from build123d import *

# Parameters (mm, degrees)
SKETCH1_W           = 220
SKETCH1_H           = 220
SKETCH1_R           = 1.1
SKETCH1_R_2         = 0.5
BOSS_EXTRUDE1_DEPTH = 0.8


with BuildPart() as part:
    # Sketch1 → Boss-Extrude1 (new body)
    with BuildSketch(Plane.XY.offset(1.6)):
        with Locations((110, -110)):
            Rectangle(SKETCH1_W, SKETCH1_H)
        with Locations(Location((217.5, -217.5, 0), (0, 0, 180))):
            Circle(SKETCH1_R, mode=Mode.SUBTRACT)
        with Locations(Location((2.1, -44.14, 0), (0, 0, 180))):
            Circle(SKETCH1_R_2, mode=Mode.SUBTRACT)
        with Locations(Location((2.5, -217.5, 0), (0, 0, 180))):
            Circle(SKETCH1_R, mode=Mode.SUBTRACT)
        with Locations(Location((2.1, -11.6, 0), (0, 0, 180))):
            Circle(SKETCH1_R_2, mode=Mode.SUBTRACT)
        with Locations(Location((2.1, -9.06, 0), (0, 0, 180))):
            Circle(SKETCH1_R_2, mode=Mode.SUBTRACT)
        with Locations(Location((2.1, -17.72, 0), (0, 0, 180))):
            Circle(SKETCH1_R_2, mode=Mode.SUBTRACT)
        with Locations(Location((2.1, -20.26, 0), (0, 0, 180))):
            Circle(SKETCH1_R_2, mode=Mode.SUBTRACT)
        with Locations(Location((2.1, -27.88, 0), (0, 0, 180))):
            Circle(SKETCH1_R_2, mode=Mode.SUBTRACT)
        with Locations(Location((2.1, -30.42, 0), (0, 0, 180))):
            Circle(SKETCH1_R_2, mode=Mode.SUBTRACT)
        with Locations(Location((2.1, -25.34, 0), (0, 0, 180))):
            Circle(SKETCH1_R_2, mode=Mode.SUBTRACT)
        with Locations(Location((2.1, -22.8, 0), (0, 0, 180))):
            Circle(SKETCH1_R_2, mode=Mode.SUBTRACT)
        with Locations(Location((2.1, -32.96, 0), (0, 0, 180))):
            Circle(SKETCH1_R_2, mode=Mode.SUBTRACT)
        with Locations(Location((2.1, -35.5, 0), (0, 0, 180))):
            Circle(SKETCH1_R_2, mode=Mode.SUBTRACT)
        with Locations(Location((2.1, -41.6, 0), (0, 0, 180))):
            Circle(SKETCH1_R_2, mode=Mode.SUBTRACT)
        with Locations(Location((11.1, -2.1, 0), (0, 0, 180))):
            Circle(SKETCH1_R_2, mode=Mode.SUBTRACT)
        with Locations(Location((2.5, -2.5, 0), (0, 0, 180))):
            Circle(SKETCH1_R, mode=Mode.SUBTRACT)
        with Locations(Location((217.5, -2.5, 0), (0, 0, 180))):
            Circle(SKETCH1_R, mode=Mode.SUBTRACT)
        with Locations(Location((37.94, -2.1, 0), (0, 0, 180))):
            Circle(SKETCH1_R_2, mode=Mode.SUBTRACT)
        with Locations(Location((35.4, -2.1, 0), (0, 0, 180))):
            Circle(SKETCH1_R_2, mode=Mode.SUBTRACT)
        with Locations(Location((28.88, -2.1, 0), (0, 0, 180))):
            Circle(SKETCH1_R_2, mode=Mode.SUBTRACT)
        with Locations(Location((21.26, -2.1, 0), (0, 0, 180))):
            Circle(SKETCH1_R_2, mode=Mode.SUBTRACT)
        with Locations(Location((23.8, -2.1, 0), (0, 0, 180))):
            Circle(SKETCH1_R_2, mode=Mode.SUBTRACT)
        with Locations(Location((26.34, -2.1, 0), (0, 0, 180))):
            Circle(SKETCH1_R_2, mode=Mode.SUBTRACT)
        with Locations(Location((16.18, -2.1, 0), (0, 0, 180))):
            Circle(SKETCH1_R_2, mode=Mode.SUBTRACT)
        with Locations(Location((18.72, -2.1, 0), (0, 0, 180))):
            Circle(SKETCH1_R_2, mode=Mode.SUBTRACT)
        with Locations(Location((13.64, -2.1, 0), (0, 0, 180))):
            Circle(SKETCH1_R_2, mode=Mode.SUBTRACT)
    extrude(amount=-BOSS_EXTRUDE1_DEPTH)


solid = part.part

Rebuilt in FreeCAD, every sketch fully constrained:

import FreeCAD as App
import Part
import Sketcher

V = App.Vector
Q = App.Units.Quantity


def add_polygon(sketch, points):
    """Adds a closed chain of lines whose ends are joined by coincident constraints."""
    first, n = sketch.GeometryCount, len(points)
    for a, b in zip(points, points[1:] + points[:1]):
        sketch.addGeometry(Part.LineSegment(App.Vector(*a, 0), App.Vector(*b, 0)), False)
    for i in range(n):
        sketch.addConstraint(Sketcher.Constraint("Coincident", first + i, 2, first + (i + 1) % n, 1))

doc = App.newDocument("Part")
body = doc.addObject("PartDesign::Body", "Body")

sketch1 = doc.addObject("Sketcher::SketchObject", "Sketch")
body.addObject(sketch1)
sketch1.AttachmentSupport = (doc.XY_Plane, [""])
sketch1.MapMode = "FlatFace"
sketch1.AttachmentOffset = App.Placement(V(0, 0, 1.6), App.Rotation())
add_polygon(sketch1, [(0, 0), (0, -220), (220, -220), (220, 0)])
sketch1.addGeometry(Part.Circle(V(2.5, -217.5, 0), V(0, 0, 1), 1.1), False)
sketch1.addGeometry(Part.Circle(V(217.5, -217.5, 0), V(0, 0, 1), 1.1), False)
sketch1.addGeometry(Part.Circle(V(2.1, -44.1, 0), V(0, 0, 1), 0.5), False)
sketch1.addGeometry(Part.Circle(V(2.1, -41.6, 0), V(0, 0, 1), 0.5), False)
sketch1.addGeometry(Part.Circle(V(2.1, -35.5, 0), V(0, 0, 1), 0.5), False)
sketch1.addGeometry(Part.Circle(V(2.1, -33, 0), V(0, 0, 1), 0.5), False)
sketch1.addGeometry(Part.Circle(V(2.1, -30.4, 0), V(0, 0, 1), 0.5), False)
sketch1.addGeometry(Part.Circle(V(2.1, -27.9, 0), V(0, 0, 1), 0.5), False)
sketch1.addGeometry(Part.Circle(V(2.1, -25.3, 0), V(0, 0, 1), 0.5), False)
sketch1.addGeometry(Part.Circle(V(2.1, -22.8, 0), V(0, 0, 1), 0.5), False)
sketch1.addGeometry(Part.Circle(V(2.1, -20.3, 0), V(0, 0, 1), 0.5), False)
sketch1.addGeometry(Part.Circle(V(2.1, -17.7, 0), V(0, 0, 1), 0.5), False)
sketch1.addGeometry(Part.Circle(V(2.1, -11.6, 0), V(0, 0, 1), 0.5), False)
sketch1.addGeometry(Part.Circle(V(2.1, -9.1, 0), V(0, 0, 1), 0.5), False)
sketch1.addGeometry(Part.Circle(V(2.5, -2.5, 0), V(0, 0, 1), 1.1), False)
sketch1.addGeometry(Part.Circle(V(11.1, -2.1, 0), V(0, 0, 1), 0.5), False)
sketch1.addGeometry(Part.Circle(V(13.6, -2.1, 0), V(0, 0, 1), 0.5), False)
sketch1.addGeometry(Part.Circle(V(16.2, -2.1, 0), V(0, 0, 1), 0.5), False)
sketch1.addGeometry(Part.Circle(V(18.7, -2.1, 0), V(0, 0, 1), 0.5), False)
sketch1.addGeometry(Part.Circle(V(21.3, -2.1, 0), V(0, 0, 1), 0.5), False)
sketch1.addGeometry(Part.Circle(V(23.8, -2.1, 0), V(0, 0, 1), 0.5), False)
sketch1.addGeometry(Part.Circle(V(26.3, -2.1, 0), V(0, 0, 1), 0.5), False)
sketch1.addGeometry(Part.Circle(V(28.9, -2.1, 0), V(0, 0, 1), 0.5), False)
sketch1.addGeometry(Part.Circle(V(35.4, -2.1, 0), V(0, 0, 1), 0.5), False)
sketch1.addGeometry(Part.Circle(V(37.9, -2.1, 0), V(0, 0, 1), 0.5), False)
sketch1.addGeometry(Part.Circle(V(217.5, -2.5, 0), V(0, 0, 1), 1.1), False)
sketch1.addConstraint([
    Sketcher.Constraint("Vertical", 0),
    Sketcher.Constraint("Horizontal", 1),
    Sketcher.Constraint("Vertical", 2),
    Sketcher.Constraint("Horizontal", 3),
    Sketcher.Constraint("Coincident", 3, 2, -1, 1),
    Sketcher.Constraint("Equal", 4, 5),
    Sketcher.Constraint("Equal", 6, 7),
    Sketcher.Constraint("Equal", 7, 8),
    Sketcher.Constraint("Equal", 8, 9),
    Sketcher.Constraint("Equal", 9, 10),
    Sketcher.Constraint("Equal", 10, 11),
    Sketcher.Constraint("Equal", 11, 12),
    Sketcher.Constraint("Equal", 12, 13),
    Sketcher.Constraint("Equal", 13, 14),
    Sketcher.Constraint("Equal", 14, 15),
    Sketcher.Constraint("Equal", 15, 16),
    Sketcher.Constraint("Equal", 16, 17),
    Sketcher.Constraint("Equal", 5, 18),
    Sketcher.Constraint("Equal", 17, 19),
    Sketcher.Constraint("Equal", 19, 20),
    Sketcher.Constraint("Equal", 20, 21),
    Sketcher.Constraint("Equal", 21, 22),
    Sketcher.Constraint("Equal", 22, 23),
    Sketcher.Constraint("Equal", 23, 24),
    Sketcher.Constraint("Equal", 24, 25),
    Sketcher.Constraint("Equal", 25, 26),
    Sketcher.Constraint("Equal", 26, 27),
    Sketcher.Constraint("Equal", 27, 28),
    Sketcher.Constraint("Equal", 18, 29),
    Sketcher.Constraint("Horizontal", 4, 3, 5, 3),
    Sketcher.Constraint("Horizontal", 19, 3, 20, 3),
    Sketcher.Constraint("Horizontal", 20, 3, 21, 3),
    Sketcher.Constraint("Horizontal", 21, 3, 22, 3),
    Sketcher.Constraint("Horizontal", 22, 3, 23, 3),
    Sketcher.Constraint("Horizontal", 23, 3, 24, 3),
    Sketcher.Constraint("Horizontal", 24, 3, 25, 3),
    Sketcher.Constraint("Horizontal", 25, 3, 26, 3),
    Sketcher.Constraint("Horizontal", 26, 3, 27, 3),
    Sketcher.Constraint("Horizontal", 27, 3, 28, 3),
    Sketcher.Constraint("Horizontal", 18, 3, 29, 3),
    Sketcher.Constraint("Vertical", 6, 3, 7, 3),
    Sketcher.Constraint("Vertical", 7, 3, 8, 3),
    Sketcher.Constraint("Vertical", 8, 3, 9, 3),
    Sketcher.Constraint("Vertical", 9, 3, 10, 3),
    Sketcher.Constraint("Vertical", 10, 3, 11, 3),
    Sketcher.Constraint("Vertical", 11, 3, 12, 3),
    Sketcher.Constraint("Vertical", 12, 3, 13, 3),
    Sketcher.Constraint("Vertical", 13, 3, 14, 3),
    Sketcher.Constraint("Vertical", 14, 3, 15, 3),
    Sketcher.Constraint("Vertical", 15, 3, 16, 3),
    Sketcher.Constraint("Vertical", 16, 3, 17, 3),
    Sketcher.Constraint("Vertical", 4, 3, 18, 3),
    Sketcher.Constraint("Vertical", 5, 3, 29, 3),
    Sketcher.Constraint("Equal", 3, 0),
    Sketcher.Constraint("Diameter", 6, Q("1 mm")),
    Sketcher.Constraint("Diameter", 4, Q("2.2 mm")),
    Sketcher.Constraint("DistanceX", 1, 1, 1, 2, Q("220 mm")),
    Sketcher.Constraint("DistanceX", 4, 3, 5, 3, Q("215 mm")),
    Sketcher.Constraint("DistanceY", 4, 3, 8, 3, Q("182 mm")),
    Sketcher.Constraint("DistanceX", 17, 3, 19, 3, Q("9 mm")),
    Sketcher.Constraint("DistanceX", -1, 1, 4, 3, Q("2.5 mm")),
    Sketcher.Constraint("DistanceY", 4, 3, -1, 1, Q("217.5 mm")),
    Sketcher.Constraint("DistanceX", -1, 1, 6, 3, Q("2.1 mm")),
    Sketcher.Constraint("DistanceY", 7, 3, -1, 1, Q("41.6 mm")),
    Sketcher.Constraint("DistanceY", 13, 3, -1, 1, Q("22.8 mm")),
    Sketcher.Constraint("DistanceY", 16, 3, -1, 1, Q("11.6 mm")),
    Sketcher.Constraint("DistanceY", 18, 3, -1, 1, Q("2.5 mm")),
    Sketcher.Constraint("DistanceY", 19, 3, -1, 1, Q("2.1 mm")),
    Sketcher.Constraint("DistanceX", -1, 1, 24, 3, Q("23.8 mm")),
    Sketcher.Constraint("DistanceX", -1, 1, 27, 3, Q("35.4 mm")),
    Sketcher.Constraint("DistanceY", 9, 3, 14, 3, Q("12.7 mm")),
    Sketcher.Constraint("DistanceY", 10, 3, 15, 3, Q("12.7 mm")),
    Sketcher.Constraint("DistanceY", 14, 3, 17, 3, Q("11.2 mm")),
    Sketcher.Constraint("DistanceX", 20, 3, 25, 3, Q("12.7 mm")),
    Sketcher.Constraint("DistanceX", 21, 3, 26, 3, Q("12.7 mm")),
    Sketcher.Constraint("DistanceX", 25, 3, 28, 3, Q("11.6 mm")),
    Sketcher.Constraint("DistanceY", 6, 3, -1, 1, Q("44.14 mm")),
    Sketcher.Constraint("DistanceY", 9, 3, -1, 1, Q("32.96 mm")),
    Sketcher.Constraint("DistanceY", 10, 3, -1, 1, Q("30.42 mm")),
    Sketcher.Constraint("DistanceY", 11, 3, -1, 1, Q("27.88 mm")),
    Sketcher.Constraint("DistanceY", 12, 3, -1, 1, Q("25.34 mm")),
    Sketcher.Constraint("DistanceX", -1, 1, 20, 3, Q("13.64 mm")),
    Sketcher.Constraint("DistanceX", -1, 1, 21, 3, Q("16.18 mm")),
    Sketcher.Constraint("DistanceX", -1, 1, 22, 3, Q("18.72 mm")),
    Sketcher.Constraint("DistanceX", -1, 1, 23, 3, Q("21.26 mm")),
])
pad1 = doc.addObject("PartDesign::Pad", "Pad")
body.addObject(pad1)
pad1.Profile = sketch1
pad1.Length = 0.8
pad1.Reversed = True

doc.recompute()
